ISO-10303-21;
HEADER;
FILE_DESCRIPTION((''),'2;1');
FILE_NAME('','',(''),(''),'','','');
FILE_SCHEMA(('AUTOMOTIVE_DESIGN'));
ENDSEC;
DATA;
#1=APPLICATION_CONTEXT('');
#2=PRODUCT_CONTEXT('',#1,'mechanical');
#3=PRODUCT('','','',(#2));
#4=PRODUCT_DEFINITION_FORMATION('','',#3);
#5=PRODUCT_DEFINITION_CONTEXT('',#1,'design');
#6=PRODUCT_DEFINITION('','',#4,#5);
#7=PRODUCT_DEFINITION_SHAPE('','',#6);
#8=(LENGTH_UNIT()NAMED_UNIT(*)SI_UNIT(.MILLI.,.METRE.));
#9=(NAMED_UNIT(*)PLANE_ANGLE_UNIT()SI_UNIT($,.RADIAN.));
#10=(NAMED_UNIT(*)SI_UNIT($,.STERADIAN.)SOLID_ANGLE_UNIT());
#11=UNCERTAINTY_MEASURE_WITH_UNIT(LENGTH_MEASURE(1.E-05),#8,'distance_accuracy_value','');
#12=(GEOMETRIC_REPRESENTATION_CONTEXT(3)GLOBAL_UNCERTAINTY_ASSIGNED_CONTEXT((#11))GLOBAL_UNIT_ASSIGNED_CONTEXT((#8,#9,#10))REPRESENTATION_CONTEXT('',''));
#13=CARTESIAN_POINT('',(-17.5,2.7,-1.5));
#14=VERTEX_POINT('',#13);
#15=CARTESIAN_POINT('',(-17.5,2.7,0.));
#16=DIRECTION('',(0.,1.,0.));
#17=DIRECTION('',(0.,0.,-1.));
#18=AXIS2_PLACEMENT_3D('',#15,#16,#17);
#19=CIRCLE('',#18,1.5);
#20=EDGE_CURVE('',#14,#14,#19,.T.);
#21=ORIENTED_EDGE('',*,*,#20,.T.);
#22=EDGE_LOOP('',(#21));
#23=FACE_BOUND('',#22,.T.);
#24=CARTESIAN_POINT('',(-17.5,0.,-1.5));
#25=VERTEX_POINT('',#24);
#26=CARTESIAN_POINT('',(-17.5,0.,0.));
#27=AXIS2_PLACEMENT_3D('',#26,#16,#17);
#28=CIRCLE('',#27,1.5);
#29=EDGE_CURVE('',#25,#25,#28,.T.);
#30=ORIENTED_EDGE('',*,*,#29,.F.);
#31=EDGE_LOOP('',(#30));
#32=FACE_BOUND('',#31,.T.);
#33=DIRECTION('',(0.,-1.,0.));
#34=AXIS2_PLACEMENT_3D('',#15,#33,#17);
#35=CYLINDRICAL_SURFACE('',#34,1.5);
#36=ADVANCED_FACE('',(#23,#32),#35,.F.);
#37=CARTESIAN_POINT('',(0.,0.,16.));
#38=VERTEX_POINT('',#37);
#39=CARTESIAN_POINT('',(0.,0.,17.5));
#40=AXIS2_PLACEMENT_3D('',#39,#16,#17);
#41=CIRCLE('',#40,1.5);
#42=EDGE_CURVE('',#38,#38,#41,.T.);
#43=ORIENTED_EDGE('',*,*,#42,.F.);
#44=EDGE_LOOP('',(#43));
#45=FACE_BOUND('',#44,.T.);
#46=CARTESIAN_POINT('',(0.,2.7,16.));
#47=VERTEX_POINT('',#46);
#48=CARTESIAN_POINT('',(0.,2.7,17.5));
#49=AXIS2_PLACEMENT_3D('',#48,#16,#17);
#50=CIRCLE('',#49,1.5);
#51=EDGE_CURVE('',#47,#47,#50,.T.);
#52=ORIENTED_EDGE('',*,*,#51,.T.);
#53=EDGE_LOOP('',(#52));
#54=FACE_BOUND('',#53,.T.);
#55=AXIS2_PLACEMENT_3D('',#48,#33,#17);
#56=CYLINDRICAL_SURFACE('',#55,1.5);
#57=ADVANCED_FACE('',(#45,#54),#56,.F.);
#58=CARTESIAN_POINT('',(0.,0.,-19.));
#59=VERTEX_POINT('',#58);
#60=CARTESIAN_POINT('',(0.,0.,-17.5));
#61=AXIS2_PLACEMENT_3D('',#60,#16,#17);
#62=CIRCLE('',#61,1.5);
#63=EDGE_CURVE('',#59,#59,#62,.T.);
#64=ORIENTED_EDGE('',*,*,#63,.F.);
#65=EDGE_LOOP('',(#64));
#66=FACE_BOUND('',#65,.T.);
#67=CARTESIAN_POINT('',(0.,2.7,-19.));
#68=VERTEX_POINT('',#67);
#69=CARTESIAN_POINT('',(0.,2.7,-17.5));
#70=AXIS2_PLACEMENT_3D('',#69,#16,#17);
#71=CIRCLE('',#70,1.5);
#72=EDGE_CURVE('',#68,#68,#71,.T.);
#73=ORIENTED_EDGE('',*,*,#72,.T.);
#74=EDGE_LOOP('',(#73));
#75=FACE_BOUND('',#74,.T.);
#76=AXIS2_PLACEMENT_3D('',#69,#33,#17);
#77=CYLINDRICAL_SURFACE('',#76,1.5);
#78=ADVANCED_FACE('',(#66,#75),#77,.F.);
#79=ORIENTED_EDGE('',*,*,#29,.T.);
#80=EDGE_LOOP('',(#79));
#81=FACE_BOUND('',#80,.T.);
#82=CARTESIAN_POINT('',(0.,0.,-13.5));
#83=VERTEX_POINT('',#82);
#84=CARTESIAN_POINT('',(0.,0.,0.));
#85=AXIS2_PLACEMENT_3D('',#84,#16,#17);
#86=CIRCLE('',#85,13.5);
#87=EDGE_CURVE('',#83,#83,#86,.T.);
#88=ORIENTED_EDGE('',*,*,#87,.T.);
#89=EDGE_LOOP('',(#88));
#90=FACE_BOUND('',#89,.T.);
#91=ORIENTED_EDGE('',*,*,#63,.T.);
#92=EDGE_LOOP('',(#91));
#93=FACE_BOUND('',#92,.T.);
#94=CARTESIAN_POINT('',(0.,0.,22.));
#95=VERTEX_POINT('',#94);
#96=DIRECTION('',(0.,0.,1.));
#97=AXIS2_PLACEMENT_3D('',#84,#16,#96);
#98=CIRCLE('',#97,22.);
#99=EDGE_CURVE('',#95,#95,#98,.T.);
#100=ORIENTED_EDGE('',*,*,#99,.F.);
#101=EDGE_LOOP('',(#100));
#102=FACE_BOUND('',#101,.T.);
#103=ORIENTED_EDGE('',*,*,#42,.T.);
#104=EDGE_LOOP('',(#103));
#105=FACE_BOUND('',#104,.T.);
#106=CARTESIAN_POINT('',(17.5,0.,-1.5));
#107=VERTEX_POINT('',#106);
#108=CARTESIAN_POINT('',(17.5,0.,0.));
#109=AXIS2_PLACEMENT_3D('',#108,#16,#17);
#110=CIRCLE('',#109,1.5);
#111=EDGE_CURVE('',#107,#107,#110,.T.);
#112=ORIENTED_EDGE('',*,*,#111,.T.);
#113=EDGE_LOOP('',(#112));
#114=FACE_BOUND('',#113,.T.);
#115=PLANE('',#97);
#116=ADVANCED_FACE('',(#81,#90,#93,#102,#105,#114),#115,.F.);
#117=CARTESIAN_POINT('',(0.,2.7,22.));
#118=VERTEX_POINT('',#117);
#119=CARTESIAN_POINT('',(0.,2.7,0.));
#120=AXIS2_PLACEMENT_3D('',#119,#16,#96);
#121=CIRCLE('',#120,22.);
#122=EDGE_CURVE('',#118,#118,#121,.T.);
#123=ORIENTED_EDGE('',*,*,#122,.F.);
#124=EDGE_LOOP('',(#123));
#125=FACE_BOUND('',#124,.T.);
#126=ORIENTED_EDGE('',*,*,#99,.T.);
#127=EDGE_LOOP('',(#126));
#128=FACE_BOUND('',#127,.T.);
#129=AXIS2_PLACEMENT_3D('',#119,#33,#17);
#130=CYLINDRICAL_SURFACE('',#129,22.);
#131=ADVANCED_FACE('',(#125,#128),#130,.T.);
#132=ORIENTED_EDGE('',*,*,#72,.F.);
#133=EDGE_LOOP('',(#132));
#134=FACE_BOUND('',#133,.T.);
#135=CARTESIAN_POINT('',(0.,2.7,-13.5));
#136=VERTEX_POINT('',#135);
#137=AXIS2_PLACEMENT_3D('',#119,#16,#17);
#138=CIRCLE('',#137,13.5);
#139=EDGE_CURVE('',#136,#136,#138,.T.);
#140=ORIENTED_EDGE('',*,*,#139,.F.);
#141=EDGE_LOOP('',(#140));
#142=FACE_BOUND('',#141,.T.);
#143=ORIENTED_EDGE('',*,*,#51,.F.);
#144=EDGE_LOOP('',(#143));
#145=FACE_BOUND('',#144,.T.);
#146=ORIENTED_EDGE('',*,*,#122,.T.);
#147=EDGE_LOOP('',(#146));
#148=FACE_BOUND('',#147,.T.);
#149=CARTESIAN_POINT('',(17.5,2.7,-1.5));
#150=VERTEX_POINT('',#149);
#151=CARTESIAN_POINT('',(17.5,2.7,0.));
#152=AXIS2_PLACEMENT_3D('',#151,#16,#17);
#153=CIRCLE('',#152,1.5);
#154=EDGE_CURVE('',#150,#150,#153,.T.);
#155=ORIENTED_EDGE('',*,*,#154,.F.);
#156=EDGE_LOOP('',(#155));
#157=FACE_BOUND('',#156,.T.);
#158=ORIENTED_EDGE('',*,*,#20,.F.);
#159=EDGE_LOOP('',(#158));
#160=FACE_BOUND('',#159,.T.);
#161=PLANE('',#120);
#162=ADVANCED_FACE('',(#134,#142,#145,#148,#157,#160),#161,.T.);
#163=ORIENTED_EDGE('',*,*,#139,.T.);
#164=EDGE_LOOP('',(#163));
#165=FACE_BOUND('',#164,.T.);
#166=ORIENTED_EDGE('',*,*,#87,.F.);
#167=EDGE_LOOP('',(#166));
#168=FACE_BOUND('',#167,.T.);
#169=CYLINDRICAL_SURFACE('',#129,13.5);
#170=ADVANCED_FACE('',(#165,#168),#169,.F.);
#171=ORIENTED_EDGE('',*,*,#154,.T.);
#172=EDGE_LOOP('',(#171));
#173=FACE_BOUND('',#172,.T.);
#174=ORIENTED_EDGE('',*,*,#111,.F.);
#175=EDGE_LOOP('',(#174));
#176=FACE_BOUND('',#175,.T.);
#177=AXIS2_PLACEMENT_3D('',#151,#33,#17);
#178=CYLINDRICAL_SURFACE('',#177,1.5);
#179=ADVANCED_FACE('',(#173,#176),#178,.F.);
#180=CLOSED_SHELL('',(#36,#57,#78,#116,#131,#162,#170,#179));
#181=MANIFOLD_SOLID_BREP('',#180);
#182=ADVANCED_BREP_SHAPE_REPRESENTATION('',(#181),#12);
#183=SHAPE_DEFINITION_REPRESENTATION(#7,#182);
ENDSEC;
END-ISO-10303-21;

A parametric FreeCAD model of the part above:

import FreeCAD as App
import Part
import Sketcher
from FreeCAD import Vector

doc = App.newDocument("Part")
body = doc.addObject("PartDesign::Body", "Body")

sketch1 = doc.addObject("Sketcher::SketchObject", "Sketch")
body.addObject(sketch1)
sketch1.AttachmentSupport = (doc.XZ_Plane, [""])
sketch1.MapMode = "FlatFace"
sketch1.addGeometry([
    Part.Circle(Vector(0, 0, 0), Vector(0, 0, 1), 22),
    Part.Circle(Vector(0, 17.5, 0), Vector(0, 0, 1), 1.5),
    Part.Circle(Vector(-17.5, 0, 0), Vector(0, 0, 1), 1.5),
    Part.Circle(Vector(0, 0, 0), Vector(0, 0, 1), 13.5),
    Part.Circle(Vector(17.5, 0, 0), Vector(0, 0, 1), 1.5),
    Part.Circle(Vector(0, -17.5, 0), Vector(0, 0, 1), 1.5),
], False)
sketch1.addConstraint([
    Sketcher.Constraint("Coincident", 0, 3, -1, 1),
    Sketcher.Constraint("Coincident", 3, 3, -1, 1),
    Sketcher.Constraint("Equal", 1, 2),
    Sketcher.Constraint("Equal", 2, 4),
    Sketcher.Constraint("Equal", 4, 5),
    Sketcher.Constraint("Symmetric", 2, 3, 4, 3, -1, 1),
    Sketcher.Constraint("Symmetric", 1, 3, 5, 3, -1, 1),
    Sketcher.Constraint("PointOnObject", 1, 3, -2),
    Sketcher.Constraint("PointOnObject", 2, 3, -1),
    Sketcher.Constraint("Diameter", 0, 44.0),
    Sketcher.Constraint("Diameter", 1, 3.0),
    Sketcher.Constraint("Diameter", 3, 27.0),
    Sketcher.Constraint("DistanceX", 2, 3, 4, 3, 35.0),
    Sketcher.Constraint("DistanceY", 5, 3, 1, 3, 35.0),
])
pad1 = doc.addObject("PartDesign::Pad", "Pad")
body.addObject(pad1)
pad1.Profile = sketch1
pad1.Length = 2.7
pad1.Reversed = True

doc.recompute()
